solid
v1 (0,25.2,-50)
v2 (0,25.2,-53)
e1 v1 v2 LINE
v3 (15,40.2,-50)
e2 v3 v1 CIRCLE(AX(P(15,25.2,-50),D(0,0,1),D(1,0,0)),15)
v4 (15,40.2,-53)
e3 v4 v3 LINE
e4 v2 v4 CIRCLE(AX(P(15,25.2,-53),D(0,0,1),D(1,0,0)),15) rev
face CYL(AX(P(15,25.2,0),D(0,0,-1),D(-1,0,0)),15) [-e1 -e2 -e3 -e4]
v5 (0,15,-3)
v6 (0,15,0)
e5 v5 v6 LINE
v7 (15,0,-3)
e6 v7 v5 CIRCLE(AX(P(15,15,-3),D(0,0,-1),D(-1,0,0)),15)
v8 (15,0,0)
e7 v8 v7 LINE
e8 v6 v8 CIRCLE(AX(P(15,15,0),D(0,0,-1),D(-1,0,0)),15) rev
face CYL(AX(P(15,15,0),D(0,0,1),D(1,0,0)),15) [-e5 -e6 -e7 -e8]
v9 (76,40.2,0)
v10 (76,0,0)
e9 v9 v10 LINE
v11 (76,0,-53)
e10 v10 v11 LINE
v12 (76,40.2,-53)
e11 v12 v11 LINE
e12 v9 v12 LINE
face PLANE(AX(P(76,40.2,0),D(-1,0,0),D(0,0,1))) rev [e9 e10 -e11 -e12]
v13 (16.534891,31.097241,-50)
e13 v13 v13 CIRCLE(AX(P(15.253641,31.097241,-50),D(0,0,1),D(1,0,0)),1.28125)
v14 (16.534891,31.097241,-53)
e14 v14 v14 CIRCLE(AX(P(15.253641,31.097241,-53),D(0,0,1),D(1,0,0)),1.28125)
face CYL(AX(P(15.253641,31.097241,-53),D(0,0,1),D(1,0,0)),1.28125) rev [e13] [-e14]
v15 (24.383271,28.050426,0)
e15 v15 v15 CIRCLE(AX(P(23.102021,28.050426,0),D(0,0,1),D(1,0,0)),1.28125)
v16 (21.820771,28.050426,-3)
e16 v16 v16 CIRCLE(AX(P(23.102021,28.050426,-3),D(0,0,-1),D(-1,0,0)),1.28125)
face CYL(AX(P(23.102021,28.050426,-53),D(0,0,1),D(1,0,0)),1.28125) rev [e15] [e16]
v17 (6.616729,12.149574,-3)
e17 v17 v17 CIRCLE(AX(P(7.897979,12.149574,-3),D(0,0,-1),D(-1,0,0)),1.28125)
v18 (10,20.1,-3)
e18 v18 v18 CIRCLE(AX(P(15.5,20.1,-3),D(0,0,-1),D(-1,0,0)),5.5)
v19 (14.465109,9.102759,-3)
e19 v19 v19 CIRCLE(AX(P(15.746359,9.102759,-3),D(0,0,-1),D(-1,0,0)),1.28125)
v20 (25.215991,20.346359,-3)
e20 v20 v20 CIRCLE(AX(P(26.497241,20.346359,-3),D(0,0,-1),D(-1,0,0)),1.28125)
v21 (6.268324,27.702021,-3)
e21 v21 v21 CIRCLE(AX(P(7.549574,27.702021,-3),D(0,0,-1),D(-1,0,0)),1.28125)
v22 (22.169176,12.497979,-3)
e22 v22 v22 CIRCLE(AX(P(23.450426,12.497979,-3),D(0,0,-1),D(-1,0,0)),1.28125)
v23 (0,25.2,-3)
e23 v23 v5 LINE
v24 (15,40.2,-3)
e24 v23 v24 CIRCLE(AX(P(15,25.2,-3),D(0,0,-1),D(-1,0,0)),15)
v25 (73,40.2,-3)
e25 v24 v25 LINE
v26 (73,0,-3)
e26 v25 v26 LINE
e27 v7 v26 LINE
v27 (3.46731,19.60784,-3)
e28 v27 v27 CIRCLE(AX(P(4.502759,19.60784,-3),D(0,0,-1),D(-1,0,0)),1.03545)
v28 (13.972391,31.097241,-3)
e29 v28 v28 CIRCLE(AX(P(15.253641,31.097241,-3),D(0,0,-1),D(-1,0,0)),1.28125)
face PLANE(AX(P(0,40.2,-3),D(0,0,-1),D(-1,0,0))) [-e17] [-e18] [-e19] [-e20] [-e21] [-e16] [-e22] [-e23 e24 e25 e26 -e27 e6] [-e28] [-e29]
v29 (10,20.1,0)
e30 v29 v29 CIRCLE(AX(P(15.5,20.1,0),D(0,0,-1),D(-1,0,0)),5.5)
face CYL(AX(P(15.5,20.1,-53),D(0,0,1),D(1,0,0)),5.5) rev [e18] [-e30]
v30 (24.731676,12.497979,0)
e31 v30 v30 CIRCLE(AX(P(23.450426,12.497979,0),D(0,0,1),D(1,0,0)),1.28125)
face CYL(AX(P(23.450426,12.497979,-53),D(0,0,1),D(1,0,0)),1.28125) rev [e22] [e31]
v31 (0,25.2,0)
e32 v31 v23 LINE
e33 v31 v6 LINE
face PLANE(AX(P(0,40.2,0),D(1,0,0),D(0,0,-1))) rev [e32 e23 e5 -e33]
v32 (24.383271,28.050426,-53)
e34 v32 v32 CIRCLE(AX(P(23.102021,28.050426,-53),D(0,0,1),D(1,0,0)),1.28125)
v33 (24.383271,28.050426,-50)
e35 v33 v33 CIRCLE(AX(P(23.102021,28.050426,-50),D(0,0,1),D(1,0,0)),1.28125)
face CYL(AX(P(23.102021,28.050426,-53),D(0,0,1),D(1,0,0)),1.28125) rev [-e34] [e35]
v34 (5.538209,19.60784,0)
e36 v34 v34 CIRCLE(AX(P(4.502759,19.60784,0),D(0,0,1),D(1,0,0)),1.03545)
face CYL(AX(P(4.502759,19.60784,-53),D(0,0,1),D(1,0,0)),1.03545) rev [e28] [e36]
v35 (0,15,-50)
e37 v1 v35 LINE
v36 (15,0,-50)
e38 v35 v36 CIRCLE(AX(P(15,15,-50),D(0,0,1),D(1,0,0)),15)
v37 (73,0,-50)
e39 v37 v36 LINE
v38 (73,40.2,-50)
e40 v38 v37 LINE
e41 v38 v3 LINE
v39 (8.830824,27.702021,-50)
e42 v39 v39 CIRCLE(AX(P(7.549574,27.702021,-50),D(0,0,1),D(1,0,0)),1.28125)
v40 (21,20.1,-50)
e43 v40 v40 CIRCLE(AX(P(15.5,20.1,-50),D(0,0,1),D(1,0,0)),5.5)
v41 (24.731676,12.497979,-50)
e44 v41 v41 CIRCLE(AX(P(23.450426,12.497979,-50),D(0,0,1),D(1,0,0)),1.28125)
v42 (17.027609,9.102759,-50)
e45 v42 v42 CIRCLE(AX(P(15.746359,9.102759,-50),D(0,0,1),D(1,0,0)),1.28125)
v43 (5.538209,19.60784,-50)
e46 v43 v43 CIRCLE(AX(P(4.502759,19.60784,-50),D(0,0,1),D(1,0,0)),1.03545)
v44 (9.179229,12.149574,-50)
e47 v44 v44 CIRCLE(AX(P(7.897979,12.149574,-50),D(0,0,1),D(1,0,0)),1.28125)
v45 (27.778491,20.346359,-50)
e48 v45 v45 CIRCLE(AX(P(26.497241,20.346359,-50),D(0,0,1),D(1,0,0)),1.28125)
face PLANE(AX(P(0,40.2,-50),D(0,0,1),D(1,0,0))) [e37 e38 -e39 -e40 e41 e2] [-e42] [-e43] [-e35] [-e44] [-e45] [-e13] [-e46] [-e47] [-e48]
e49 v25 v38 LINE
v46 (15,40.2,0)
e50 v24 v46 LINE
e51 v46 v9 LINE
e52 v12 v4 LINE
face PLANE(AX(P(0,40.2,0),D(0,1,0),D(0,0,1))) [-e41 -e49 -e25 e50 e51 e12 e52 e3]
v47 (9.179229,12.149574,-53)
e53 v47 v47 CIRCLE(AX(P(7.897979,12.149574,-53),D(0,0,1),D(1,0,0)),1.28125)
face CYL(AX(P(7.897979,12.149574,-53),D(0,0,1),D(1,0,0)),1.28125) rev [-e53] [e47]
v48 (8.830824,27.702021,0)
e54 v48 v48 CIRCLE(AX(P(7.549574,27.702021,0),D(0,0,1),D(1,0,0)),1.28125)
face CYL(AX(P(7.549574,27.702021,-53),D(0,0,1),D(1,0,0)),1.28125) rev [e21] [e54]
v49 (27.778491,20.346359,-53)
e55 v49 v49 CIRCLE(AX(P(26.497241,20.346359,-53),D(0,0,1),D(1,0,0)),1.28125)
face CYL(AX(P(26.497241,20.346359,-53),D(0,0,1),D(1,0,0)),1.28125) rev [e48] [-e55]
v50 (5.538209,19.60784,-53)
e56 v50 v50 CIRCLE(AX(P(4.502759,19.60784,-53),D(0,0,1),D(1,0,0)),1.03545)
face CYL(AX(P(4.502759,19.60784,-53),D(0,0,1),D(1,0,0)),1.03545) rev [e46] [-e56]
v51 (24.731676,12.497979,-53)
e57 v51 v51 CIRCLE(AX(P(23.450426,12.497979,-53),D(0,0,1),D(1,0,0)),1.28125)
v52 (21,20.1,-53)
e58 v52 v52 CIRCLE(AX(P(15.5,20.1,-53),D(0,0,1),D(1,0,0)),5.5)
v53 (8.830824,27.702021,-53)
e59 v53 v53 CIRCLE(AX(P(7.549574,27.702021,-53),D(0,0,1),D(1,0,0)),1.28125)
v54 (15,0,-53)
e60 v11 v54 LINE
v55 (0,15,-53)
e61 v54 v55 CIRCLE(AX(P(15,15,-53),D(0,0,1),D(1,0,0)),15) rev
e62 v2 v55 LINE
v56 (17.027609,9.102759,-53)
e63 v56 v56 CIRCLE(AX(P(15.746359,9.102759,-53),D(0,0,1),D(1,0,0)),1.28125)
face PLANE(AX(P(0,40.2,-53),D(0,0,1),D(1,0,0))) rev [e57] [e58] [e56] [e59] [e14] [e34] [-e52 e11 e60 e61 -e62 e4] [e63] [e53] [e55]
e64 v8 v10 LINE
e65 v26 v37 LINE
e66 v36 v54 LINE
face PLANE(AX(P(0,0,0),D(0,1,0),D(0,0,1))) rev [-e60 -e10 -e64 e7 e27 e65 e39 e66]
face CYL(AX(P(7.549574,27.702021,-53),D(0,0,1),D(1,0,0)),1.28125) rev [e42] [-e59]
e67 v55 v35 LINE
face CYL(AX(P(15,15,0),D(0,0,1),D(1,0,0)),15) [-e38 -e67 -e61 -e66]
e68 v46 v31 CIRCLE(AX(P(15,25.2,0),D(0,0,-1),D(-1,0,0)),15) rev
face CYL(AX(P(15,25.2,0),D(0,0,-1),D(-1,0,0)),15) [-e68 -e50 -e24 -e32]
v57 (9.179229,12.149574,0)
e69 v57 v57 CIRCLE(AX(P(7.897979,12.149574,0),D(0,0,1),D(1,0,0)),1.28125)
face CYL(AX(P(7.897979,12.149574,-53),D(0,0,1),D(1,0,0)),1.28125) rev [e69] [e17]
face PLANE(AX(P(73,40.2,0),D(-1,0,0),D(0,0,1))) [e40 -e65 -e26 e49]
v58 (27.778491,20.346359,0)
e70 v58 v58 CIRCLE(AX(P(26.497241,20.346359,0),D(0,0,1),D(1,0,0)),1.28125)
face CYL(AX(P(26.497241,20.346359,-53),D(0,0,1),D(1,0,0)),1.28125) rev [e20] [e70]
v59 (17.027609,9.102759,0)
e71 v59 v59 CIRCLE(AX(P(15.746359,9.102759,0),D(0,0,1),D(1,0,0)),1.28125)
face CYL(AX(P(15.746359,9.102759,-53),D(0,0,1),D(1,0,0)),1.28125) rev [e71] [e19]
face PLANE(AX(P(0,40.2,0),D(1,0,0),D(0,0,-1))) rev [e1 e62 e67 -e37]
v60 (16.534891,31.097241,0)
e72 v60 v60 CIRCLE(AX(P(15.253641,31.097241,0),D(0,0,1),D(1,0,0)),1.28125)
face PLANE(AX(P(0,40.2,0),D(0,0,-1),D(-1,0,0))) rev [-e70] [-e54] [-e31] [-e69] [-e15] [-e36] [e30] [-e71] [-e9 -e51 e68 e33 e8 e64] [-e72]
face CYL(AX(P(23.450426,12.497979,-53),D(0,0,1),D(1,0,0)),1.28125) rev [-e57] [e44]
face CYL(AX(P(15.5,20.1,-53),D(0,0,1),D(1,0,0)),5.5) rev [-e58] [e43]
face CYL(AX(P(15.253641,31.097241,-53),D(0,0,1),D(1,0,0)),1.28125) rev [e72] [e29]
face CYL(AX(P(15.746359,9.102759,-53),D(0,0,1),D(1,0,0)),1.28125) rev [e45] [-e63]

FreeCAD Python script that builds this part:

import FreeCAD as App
import Part
import Sketcher
from FreeCAD import Vector
Q = App.Units.Quantity


def edges_at(feature, points):
    """Names of the edges that pass closest to the given points."""
    edges = feature.Shape.Edges
    near = lambda p: min(range(len(edges)), key=lambda i: edges[i].distToShape(Part.Vertex(*p))[0])
    return sorted({f"Edge{near(p) + 1}" for p in points})

doc = App.newDocument("Part")
body = doc.addObject("PartDesign::Body", "Body")

# Sketch on XZ plane
sketch1 = body.newObject("Sketcher::SketchObject", "Sketch")
sketch1.AttachmentSupport = (doc.getObject("XZ_Plane"), [""])
sketch1.MapMode = "FlatFace"
sketch1.addGeometry(Part.LineSegment(Vector(0, -3, 0), Vector(0, 0, 0)), False)
sketch1.addGeometry(Part.LineSegment(Vector(0, 0, 0), Vector(76, 0, 0)), False)
sketch1.addGeometry(Part.LineSegment(Vector(76, 0, 0), Vector(76, -53, 0)), False)
sketch1.addGeometry(Part.LineSegment(Vector(76, -53, 0), Vector(0, -53, 0)), False)
sketch1.addGeometry(Part.LineSegment(Vector(0, -53, 0), Vector(0, -50, 0)), False)
sketch1.addGeometry(Part.LineSegment(Vector(0, -50, 0), Vector(73, -50, 0)), False)
sketch1.addGeometry(Part.LineSegment(Vector(73, -50, 0), Vector(73, -3, 0)), False)
sketch1.addGeometry(Part.LineSegment(Vector(73, -3, 0), Vector(0, -3, 0)), False)
sketch1.addConstraint(Sketcher.Constraint("Coincident", 0, 2, 1, 1))
sketch1.addConstraint(Sketcher.Constraint("Coincident", 1, 2, 2, 1))
sketch1.addConstraint(Sketcher.Constraint("Coincident", 2, 2, 3, 1))
sketch1.addConstraint(Sketcher.Constraint("Coincident", 3, 2, 4, 1))
sketch1.addConstraint(Sketcher.Constraint("Coincident", 4, 2, 5, 1))
sketch1.addConstraint(Sketcher.Constraint("Coincident", 5, 2, 6, 1))
sketch1.addConstraint(Sketcher.Constraint("Coincident", 6, 2, 7, 1))
sketch1.addConstraint(Sketcher.Constraint("Coincident", 7, 2, 0, 1))
sketch1.addConstraint(Sketcher.Constraint("Vertical", 0))
sketch1.addConstraint(Sketcher.Constraint("Horizontal", 1))
sketch1.addConstraint(Sketcher.Constraint("Vertical", 2))
sketch1.addConstraint(Sketcher.Constraint("Horizontal", 3))
sketch1.addConstraint(Sketcher.Constraint("Vertical", 4))
sketch1.addConstraint(Sketcher.Constraint("Horizontal", 5))
sketch1.addConstraint(Sketcher.Constraint("Vertical", 6))
sketch1.addConstraint(Sketcher.Constraint("Horizontal", 7))
sketch1.addConstraint(Sketcher.Constraint("Coincident", 0, 2, -1, 1))
sketch1.addConstraint(Sketcher.Constraint("PointOnObject", 3, 2, -2))
sketch1.addConstraint(Sketcher.Constraint("Equal", 0, 4))
sketch1.addConstraint(Sketcher.Constraint("DistanceX", 1, 1, 1, 2, Q("76 mm")))
sketch1.addConstraint(Sketcher.Constraint("DistanceX", 5, 1, 5, 2, Q("73 mm")))
sketch1.addConstraint(Sketcher.Constraint("DistanceY", 0, 1, 0, 2, Q("3 mm")))
sketch1.addConstraint(Sketcher.Constraint("DistanceY", 2, 2, 2, 1, Q("53 mm")))
pad1 = body.newObject("PartDesign::Pad", "Pad")
pad1.Profile = sketch1
pad1.Length = 40.2
pad1.Reversed = True

# Sketch on XY plane
sketch2 = body.newObject("Sketcher::SketchObject", "Sketch001")
sketch2.AttachmentSupport = (doc.getObject("XY_Plane"), [""])
sketch2.MapMode = "FlatFace"
sketch2.addGeometry(Part.Circle(Vector(16, 20, 0), Vector(0, 0, 1), 6), False)
sketch2.addConstraint(Sketcher.Constraint("Diameter", 0, Q("11 mm")))
sketch2.addConstraint(Sketcher.Constraint("DistanceX", -1, 1, 0, 3, Q("15.5 mm")))
sketch2.addConstraint(Sketcher.Constraint("DistanceY", -1, 1, 0, 3, Q("20.1 mm")))
pocket1 = body.newObject("PartDesign::Pocket", "Pocket")
pocket1.Profile = sketch2
pocket1.Type = "ThroughAll"
pocket1.Midplane = True
doc.recompute()

fillet = body.newObject("PartDesign::Fillet", "Fillet")
fillet.Base = (pocket1, edges_at(pocket1, [
    (0, 0, -1.5),
    (0, 40.2, -1.5),
    (0, 40.2, -51.5),
    (0, 0, -51.5),
]))
fillet.Radius = 15

# Sketch on XY plane
sketch3 = body.newObject("Sketcher::SketchObject", "Sketch002")
sketch3.AttachmentSupport = (doc.getObject("XY_Plane"), [""])
sketch3.MapMode = "FlatFace"
sketch3.AttachmentOffset = App.Placement(Vector(0, 0, -50), App.Rotation())
sketch3.addGeometry(Part.Circle(Vector(15.7, 9.1, 0), Vector(0, 0, 1), 1.3), False)
sketch3.addGeometry(Part.Circle(Vector(7.9, 12.1, 0), Vector(0, 0, 1), 1.3), False)
sketch3.addGeometry(Part.Circle(Vector(4.5, 19.6, 0), Vector(0, 0, 1), 1), False)
sketch3.addGeometry(Part.Circle(Vector(7.5, 27.7, 0), Vector(0, 0, 1), 1.3), False)
sketch3.addGeometry(Part.Circle(Vector(23.5, 12.5, 0), Vector(0, 0, 1), 1.3), False)
sketch3.addGeometry(Part.Circle(Vector(15.3, 31.1, 0), Vector(0, 0, 1), 1.3), False)
sketch3.addGeometry(Part.Circle(Vector(23.1, 28.1, 0), Vector(0, 0, 1), 1.3), False)
sketch3.addGeometry(Part.Circle(Vector(26.5, 20.3, 0), Vector(0, 0, 1), 1.3), False)
sketch3.addConstraint(Sketcher.Constraint("Equal", 0, 1))
sketch3.addConstraint(Sketcher.Constraint("Equal", 1, 3))
sketch3.addConstraint(Sketcher.Constraint("Equal", 3, 4))
sketch3.addConstraint(Sketcher.Constraint("Equal", 4, 5))
sketch3.addConstraint(Sketcher.Constraint("Equal", 5, 6))
sketch3.addConstraint(Sketcher.Constraint("Equal", 6, 7))
sketch3.addConstraint(Sketcher.Constraint("Diameter", 0, Q("2.5625 mm")))
sketch3.addConstraint(Sketcher.Constraint("Diameter", 2, Q("2.070899 mm")))
sketch3.addConstraint(Sketcher.Constraint("DistanceX", 2, 3, 0, 3, Q("11.2436 mm")))
sketch3.addConstraint(Sketcher.Constraint("DistanceY", 2, 3, 5, 3, Q("11.489401 mm")))
sketch3.addConstraint(Sketcher.Constraint("DistanceX", 5, 3, 7, 3, Q("11.2436 mm")))
sketch3.addConstraint(Sketcher.Constraint("DistanceY", 0, 3, 7, 3, Q("11.2436 mm")))
sketch3.addConstraint(Sketcher.Constraint("DistanceX", -1, 1, 0, 3, Q("15.746359 mm")))
sketch3.addConstraint(Sketcher.Constraint("DistanceY", -1, 1, 0, 3, Q("9.102759 mm")))
sketch3.addConstraint(Sketcher.Constraint("DistanceX", -1, 1, 1, 3, Q("7.897979 mm")))
sketch3.addConstraint(Sketcher.Constraint("DistanceY", -1, 1, 2, 3, Q("19.60784 mm")))
sketch3.addConstraint(Sketcher.Constraint("DistanceY", -1, 1, 3, 3, Q("27.702021 mm")))
sketch3.addConstraint(Sketcher.Constraint("DistanceY", -1, 1, 4, 3, Q("12.497979 mm")))
sketch3.addConstraint(Sketcher.Constraint("DistanceX", -1, 1, 5, 3, Q("15.253641 mm")))
sketch3.addConstraint(Sketcher.Constraint("DistanceX", -1, 1, 6, 3, Q("23.102021 mm")))
sketch3.addConstraint(Sketcher.Constraint("DistanceX", 3, 3, 4, 3, Q("15.900852 mm")))
sketch3.addConstraint(Sketcher.Constraint("DistanceY", -1, 1, 1, 3, Q("12.149574 mm")))
sketch3.addConstraint(Sketcher.Constraint("DistanceX", -1, 1, 3, 3, Q("7.549574 mm")))
sketch3.addConstraint(Sketcher.Constraint("DistanceY", -1, 1, 6, 3, Q("28.050426 mm")))
pocket2 = body.newObject("PartDesign::Pocket", "Pocket001")
pocket2.Profile = sketch3
pocket2.Type = "ThroughAll"
pocket2.Midplane = True

doc.recompute()
